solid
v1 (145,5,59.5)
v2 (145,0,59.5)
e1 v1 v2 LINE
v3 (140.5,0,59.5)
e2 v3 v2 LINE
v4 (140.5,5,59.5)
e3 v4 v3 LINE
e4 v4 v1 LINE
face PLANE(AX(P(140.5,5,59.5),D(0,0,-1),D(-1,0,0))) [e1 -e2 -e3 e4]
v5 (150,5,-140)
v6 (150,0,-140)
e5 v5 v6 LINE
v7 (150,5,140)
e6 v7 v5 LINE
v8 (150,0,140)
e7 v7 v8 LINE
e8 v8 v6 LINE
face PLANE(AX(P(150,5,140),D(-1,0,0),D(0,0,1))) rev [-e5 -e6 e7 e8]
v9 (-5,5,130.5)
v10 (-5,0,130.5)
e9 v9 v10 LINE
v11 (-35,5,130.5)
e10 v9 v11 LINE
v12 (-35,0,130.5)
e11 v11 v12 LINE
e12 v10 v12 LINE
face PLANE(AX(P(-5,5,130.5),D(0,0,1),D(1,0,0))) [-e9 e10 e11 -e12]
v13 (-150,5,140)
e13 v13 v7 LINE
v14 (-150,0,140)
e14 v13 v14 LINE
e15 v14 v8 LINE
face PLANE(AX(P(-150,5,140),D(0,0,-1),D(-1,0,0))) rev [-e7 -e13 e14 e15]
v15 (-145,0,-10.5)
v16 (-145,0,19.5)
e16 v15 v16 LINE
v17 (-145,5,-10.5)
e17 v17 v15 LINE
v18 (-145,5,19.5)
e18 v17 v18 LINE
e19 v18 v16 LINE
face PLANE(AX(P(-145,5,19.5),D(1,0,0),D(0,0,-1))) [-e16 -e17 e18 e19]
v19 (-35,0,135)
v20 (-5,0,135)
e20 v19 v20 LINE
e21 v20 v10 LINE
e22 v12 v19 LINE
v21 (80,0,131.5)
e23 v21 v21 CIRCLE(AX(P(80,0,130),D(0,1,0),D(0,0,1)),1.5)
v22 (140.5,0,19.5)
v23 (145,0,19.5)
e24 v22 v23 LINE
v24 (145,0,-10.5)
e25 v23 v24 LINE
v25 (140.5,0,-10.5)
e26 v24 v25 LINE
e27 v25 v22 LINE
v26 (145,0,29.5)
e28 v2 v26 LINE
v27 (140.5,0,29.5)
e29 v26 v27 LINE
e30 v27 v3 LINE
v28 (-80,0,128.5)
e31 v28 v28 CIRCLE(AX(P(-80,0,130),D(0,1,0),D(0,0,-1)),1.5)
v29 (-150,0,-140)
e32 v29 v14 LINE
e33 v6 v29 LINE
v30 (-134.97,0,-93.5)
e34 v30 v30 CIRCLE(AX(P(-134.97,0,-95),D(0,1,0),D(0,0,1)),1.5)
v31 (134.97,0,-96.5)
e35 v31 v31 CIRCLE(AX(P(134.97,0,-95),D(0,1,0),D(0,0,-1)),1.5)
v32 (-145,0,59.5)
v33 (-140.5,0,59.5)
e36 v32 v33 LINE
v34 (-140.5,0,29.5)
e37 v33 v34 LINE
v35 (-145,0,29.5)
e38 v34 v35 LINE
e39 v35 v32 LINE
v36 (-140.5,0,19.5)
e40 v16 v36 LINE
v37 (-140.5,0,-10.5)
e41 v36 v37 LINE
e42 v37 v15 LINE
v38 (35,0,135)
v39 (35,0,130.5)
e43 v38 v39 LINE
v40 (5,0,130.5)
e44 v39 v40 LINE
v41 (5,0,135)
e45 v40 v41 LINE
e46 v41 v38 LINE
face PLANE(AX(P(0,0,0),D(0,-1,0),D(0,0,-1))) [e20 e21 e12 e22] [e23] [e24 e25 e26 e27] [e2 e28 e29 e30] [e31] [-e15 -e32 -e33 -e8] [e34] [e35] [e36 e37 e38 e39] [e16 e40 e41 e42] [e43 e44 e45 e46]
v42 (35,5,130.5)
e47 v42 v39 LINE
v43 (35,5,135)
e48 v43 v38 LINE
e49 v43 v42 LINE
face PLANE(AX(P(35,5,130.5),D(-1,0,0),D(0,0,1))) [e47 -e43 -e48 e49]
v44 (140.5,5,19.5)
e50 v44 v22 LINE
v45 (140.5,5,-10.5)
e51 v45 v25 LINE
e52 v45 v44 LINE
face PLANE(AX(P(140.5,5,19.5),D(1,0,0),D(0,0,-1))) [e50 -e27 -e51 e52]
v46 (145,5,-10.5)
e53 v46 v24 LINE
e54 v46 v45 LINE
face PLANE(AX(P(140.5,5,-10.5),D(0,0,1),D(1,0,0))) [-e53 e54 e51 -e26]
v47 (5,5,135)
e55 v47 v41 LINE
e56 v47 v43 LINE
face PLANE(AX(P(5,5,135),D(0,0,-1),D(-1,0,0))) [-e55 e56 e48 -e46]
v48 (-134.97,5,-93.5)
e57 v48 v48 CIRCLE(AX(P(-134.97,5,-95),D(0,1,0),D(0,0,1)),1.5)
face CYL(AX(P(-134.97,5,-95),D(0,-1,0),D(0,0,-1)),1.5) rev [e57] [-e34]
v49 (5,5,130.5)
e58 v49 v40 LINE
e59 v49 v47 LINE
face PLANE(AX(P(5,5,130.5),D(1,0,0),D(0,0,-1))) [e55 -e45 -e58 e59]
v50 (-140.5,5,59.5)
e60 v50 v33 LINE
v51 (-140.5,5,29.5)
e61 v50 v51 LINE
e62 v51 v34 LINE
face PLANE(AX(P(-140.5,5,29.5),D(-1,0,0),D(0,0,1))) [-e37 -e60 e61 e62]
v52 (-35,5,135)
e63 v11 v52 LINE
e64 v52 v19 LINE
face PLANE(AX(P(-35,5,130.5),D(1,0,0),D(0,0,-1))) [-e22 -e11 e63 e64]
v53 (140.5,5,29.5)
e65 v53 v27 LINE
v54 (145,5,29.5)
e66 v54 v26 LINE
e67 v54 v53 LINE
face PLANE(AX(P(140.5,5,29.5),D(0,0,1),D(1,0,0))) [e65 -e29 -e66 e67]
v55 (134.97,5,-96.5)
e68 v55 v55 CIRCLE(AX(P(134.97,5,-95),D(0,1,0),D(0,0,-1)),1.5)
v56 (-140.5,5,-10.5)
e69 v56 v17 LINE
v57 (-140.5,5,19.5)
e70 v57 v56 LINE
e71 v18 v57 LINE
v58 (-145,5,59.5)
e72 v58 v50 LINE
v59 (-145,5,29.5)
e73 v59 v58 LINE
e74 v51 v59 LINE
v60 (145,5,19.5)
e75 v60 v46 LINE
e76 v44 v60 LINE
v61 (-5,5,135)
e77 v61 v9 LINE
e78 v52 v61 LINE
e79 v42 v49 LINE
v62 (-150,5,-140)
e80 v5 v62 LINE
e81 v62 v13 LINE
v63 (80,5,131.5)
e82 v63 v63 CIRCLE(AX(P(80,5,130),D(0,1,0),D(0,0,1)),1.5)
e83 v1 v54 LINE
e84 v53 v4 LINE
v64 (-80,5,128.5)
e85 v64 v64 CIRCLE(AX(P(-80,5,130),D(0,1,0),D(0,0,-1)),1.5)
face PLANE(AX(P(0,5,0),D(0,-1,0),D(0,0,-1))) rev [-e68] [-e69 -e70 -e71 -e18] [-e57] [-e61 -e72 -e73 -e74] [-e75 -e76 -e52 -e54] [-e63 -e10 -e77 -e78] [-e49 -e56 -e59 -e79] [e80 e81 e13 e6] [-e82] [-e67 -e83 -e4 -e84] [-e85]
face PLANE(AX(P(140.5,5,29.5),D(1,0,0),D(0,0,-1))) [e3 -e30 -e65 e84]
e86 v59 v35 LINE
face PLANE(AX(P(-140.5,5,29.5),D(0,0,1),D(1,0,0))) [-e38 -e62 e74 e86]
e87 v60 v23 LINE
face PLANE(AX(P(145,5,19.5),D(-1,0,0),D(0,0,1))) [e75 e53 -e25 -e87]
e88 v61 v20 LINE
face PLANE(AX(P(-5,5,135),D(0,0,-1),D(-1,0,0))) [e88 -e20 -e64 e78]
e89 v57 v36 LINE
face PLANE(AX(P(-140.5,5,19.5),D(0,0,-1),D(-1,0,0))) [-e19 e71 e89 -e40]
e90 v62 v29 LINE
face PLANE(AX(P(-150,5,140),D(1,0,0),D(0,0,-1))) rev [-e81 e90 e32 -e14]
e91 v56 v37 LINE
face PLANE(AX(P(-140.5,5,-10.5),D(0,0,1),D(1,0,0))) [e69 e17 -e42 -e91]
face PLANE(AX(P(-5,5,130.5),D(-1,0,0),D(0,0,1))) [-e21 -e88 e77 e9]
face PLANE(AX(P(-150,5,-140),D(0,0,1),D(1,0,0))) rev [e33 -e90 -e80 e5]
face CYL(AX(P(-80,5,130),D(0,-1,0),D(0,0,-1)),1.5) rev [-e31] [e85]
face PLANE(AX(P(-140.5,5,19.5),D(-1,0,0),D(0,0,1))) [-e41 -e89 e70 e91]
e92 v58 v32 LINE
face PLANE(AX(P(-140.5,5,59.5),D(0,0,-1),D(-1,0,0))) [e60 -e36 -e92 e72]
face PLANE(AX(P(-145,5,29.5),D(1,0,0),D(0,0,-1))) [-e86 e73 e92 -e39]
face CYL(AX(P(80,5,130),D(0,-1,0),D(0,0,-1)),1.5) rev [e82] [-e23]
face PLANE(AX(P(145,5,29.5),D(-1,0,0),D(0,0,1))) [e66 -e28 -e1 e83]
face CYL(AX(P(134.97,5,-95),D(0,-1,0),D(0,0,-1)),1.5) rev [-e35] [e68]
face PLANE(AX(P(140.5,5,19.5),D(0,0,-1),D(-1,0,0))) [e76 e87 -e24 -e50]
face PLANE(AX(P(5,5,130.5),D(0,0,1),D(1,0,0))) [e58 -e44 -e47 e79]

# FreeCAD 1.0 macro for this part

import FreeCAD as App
import Part
import Sketcher

doc = App.newDocument("Part")
params = doc.addObject("Spreadsheet::Sheet", "Params")
for row, (alias, value) in enumerate([
    ("sketch1_diameter", "3 mm"),
    ("sketch1_width", "300 mm"),
    ("sketch1_width2", "30 mm"),
    ("sketch1_height", "280 mm"),
    ("sketch1_width3", "4.5 mm"),
    ("pad1_length", "5 mm"),
], start=1):
    params.set(f"A{row}", alias)
    params.set(f"B{row}", "=" + value)
    params.setAlias(f"B{row}", alias)

body = doc.addObject("PartDesign::Body", "Body")

# Sketch on XZ plane
sketch1 = doc.addObject("Sketcher::SketchObject", "Sketch")
body.addObject(sketch1)
sketch1.AttachmentSupport = (doc.XZ_Plane, [""])
sketch1.MapMode = "FlatFace"
sketch1.addGeometry([
    Part.LineSegment(App.Vector(-150, -140, 0), App.Vector(-150, 140, 0)),  # 0
    Part.LineSegment(App.Vector(-150, 140, 0), App.Vector(150, 140, 0)),  # 1
    Part.LineSegment(App.Vector(150, 140, 0), App.Vector(150, -140, 0)),  # 2
    Part.LineSegment(App.Vector(150, -140, 0), App.Vector(-150, -140, 0)),  # 3
    Part.Circle(App.Vector(-80, 130, 0), App.Vector(0, 0, 1), 1.5),  # 4
    Part.LineSegment(App.Vector(-5, 135, 0), App.Vector(-35, 135, 0)),  # 5
    Part.LineSegment(App.Vector(-35, 135, 0), App.Vector(-35, 130.5, 0)),  # 6
    Part.LineSegment(App.Vector(-35, 130.5, 0), App.Vector(-5, 130.5, 0)),  # 7
    Part.LineSegment(App.Vector(-5, 130.5, 0), App.Vector(-5, 135, 0)),  # 8
    Part.LineSegment(App.Vector(-140.5, 59.5, 0), App.Vector(-145, 59.5, 0)),  # 9
    Part.LineSegment(App.Vector(-145, 59.5, 0), App.Vector(-145, 29.5, 0)),  # 10
    Part.LineSegment(App.Vector(-145, 29.5, 0), App.Vector(-140.5, 29.5, 0)),  # 11
    Part.LineSegment(App.Vector(-140.5, 29.5, 0), App.Vector(-140.5, 59.5, 0)),  # 12
    Part.LineSegment(App.Vector(35, 135, 0), App.Vector(5, 135, 0)),  # 13
    Part.LineSegment(App.Vector(5, 135, 0), App.Vector(5, 130.5, 0)),  # 14
    Part.LineSegment(App.Vector(5, 130.5, 0), App.Vector(35, 130.5, 0)),  # 15
    Part.LineSegment(App.Vector(35, 130.5, 0), App.Vector(35, 135, 0)),  # 16
    Part.Circle(App.Vector(80, 130, 0), App.Vector(0, 0, 1), 1.5),  # 17
    Part.LineSegment(App.Vector(145, 59.5, 0), App.Vector(140.5, 59.5, 0)),  # 18
    Part.LineSegment(App.Vector(140.5, 59.5, 0), App.Vector(140.5, 29.5, 0)),  # 19
    Part.LineSegment(App.Vector(140.5, 29.5, 0), App.Vector(145, 29.5, 0)),  # 20
    Part.LineSegment(App.Vector(145, 29.5, 0), App.Vector(145, 59.5, 0)),  # 21
    Part.LineSegment(App.Vector(-140.5, 19.5, 0), App.Vector(-145, 19.5, 0)),  # 22
    Part.LineSegment(App.Vector(-145, 19.5, 0), App.Vector(-145, -10.5, 0)),  # 23
    Part.LineSegment(App.Vector(-145, -10.5, 0), App.Vector(-140.5, -10.5, 0)),  # 24
    Part.LineSegment(App.Vector(-140.5, -10.5, 0), App.Vector(-140.5, 19.5, 0)),  # 25
    Part.Circle(App.Vector(-134.97, -95, 0), App.Vector(0, 0, 1), 1.5),  # 26
    Part.LineSegment(App.Vector(145, 19.5, 0), App.Vector(140.5, 19.5, 0)),  # 27
    Part.LineSegment(App.Vector(140.5, 19.5, 0), App.Vector(140.5, -10.5, 0)),  # 28
    Part.LineSegment(App.Vector(140.5, -10.5, 0), App.Vector(145, -10.5, 0)),  # 29
    Part.LineSegment(App.Vector(145, -10.5, 0), App.Vector(145, 19.5, 0)),  # 30
    Part.Circle(App.Vector(134.97, -95, 0), App.Vector(0, 0, 1), 1.5),  # 31
], False)
sketch1.addConstraint([
    Sketcher.Constraint("Coincident", 0, 2, 1, 1),
    Sketcher.Constraint("Coincident", 1, 2, 2, 1),
    Sketcher.Constraint("Coincident", 2, 2, 3, 1),
    Sketcher.Constraint("Coincident", 3, 2, 0, 1),
    Sketcher.Constraint("Coincident", 5, 2, 6, 1),
    Sketcher.Constraint("Coincident", 6, 2, 7, 1),
    Sketcher.Constraint("Coincident", 7, 2, 8, 1),
    Sketcher.Constraint("Coincident", 8, 2, 5, 1),
    Sketcher.Constraint("Coincident", 9, 2, 10, 1),
    Sketcher.Constraint("Coincident", 10, 2, 11, 1),
    Sketcher.Constraint("Coincident", 11, 2, 12, 1),
    Sketcher.Constraint("Coincident", 12, 2, 9, 1),
    Sketcher.Constraint("Coincident", 13, 2, 14, 1),
    Sketcher.Constraint("Coincident", 14, 2, 15, 1),
    Sketcher.Constraint("Coincident", 15, 2, 16, 1),
    Sketcher.Constraint("Coincident", 16, 2, 13, 1),
    Sketcher.Constraint("Coincident", 18, 2, 19, 1),
    Sketcher.Constraint("Coincident", 19, 2, 20, 1),
    Sketcher.Constraint("Coincident", 20, 2, 21, 1),
    Sketcher.Constraint("Coincident", 21, 2, 18, 1),
    Sketcher.Constraint("Coincident", 22, 2, 23, 1),
    Sketcher.Constraint("Coincident", 23, 2, 24, 1),
    Sketcher.Constraint("Coincident", 24, 2, 25, 1),
    Sketcher.Constraint("Coincident", 25, 2, 22, 1),
    Sketcher.Constraint("Coincident", 27, 2, 28, 1),
    Sketcher.Constraint("Coincident", 28, 2, 29, 1),
    Sketcher.Constraint("Coincident", 29, 2, 30, 1),
    Sketcher.Constraint("Coincident", 30, 2, 27, 1),
    Sketcher.Constraint("Vertical", 0),
    Sketcher.Constraint("Horizontal", 1),
    Sketcher.Constraint("Vertical", 2),
    Sketcher.Constraint("Horizontal", 3),
    Sketcher.Constraint("Horizontal", 5),
    Sketcher.Constraint("Vertical", 6),
    Sketcher.Constraint("Horizontal", 7),
    Sketcher.Constraint("Vertical", 8),
    Sketcher.Constraint("Horizontal", 9),
    Sketcher.Constraint("Vertical", 10),
    Sketcher.Constraint("Horizontal", 11),
    Sketcher.Constraint("Vertical", 12),
    Sketcher.Constraint("Horizontal", 13),
    Sketcher.Constraint("Vertical", 14),
    Sketcher.Constraint("Horizontal", 15),
    Sketcher.Constraint("Vertical", 16),
    Sketcher.Constraint("Horizontal", 18),
    Sketcher.Constraint("Vertical", 19),
    Sketcher.Constraint("Horizontal", 20),
    Sketcher.Constraint("Vertical", 21),
    Sketcher.Constraint("Horizontal", 22),
    Sketcher.Constraint("Vertical", 23),
    Sketcher.Constraint("Horizontal", 24),
    Sketcher.Constraint("Vertical", 25),
    Sketcher.Constraint("Horizontal", 27),
    Sketcher.Constraint("Vertical", 28),
    Sketcher.Constraint("Horizontal", 29),
    Sketcher.Constraint("Vertical", 30),
    Sketcher.Constraint("Equal", 4, 17),
    Sketcher.Constraint("Equal", 17, 26),
    Sketcher.Constraint("Equal", 26, 31),
    Sketcher.Constraint("Symmetric", 0, 2, 2, 2, -1, 1),
    Sketcher.Constraint("Symmetric", 4, 3, 17, 3, -2),
    Sketcher.Constraint("Symmetric", 26, 3, 31, 3, -2),
    Sketcher.Constraint("Symmetric", 8, 2, 13, 2, -2),
    Sketcher.Constraint("Symmetric", 6, 2, 15, 2, -2),
    Sketcher.Constraint("Symmetric", 12, 2, 18, 2, -2),
    Sketcher.Constraint("Symmetric", 10, 2, 20, 2, -2),
    Sketcher.Constraint("Symmetric", 25, 2, 27, 2, -2),
    Sketcher.Constraint("Symmetric", 23, 2, 29, 2, -2),
    Sketcher.Constraint("Vertical", 10, 2, 22, 2),
    Sketcher.Constraint("Vertical", 12, 2, 24, 2),
    Sketcher.Constraint("Equal", 29, 6),
    Sketcher.Constraint("Equal", 15, 10),
    Sketcher.Constraint("Equal", 21, 23),
    Sketcher.Constraint("Diameter", 4, 3.0),
    Sketcher.Constraint("DistanceX", 1, 1, 1, 2, 300.0),
    Sketcher.Constraint("DistanceX", 5, 2, 5, 1, 30.0),
    Sketcher.Constraint("DistanceY", 0, 1, 0, 2, 280.0),
    Sketcher.Constraint("DistanceX", 9, 2, 9, 1, 4.5),
    Sketcher.Constraint("DistanceX", 4, 3, -1, 1, 80.0),
    Sketcher.Constraint("DistanceY", -1, 1, 4, 3, 130.0),
    Sketcher.Constraint("DistanceY", 26, 3, -1, 1, 95.0),
    Sketcher.Constraint("DistanceX", 5, 2, -1, 1, 35.0),
    Sketcher.Constraint("DistanceY", -1, 1, 5, 2, 135.0),
    Sketcher.Constraint("DistanceX", 9, 2, -1, 1, 145.0),
    Sketcher.Constraint("DistanceY", 9, 2, 6, 2, 71.0),
    Sketcher.Constraint("DistanceY", 22, 2, 10, 2, 10.0),
    Sketcher.Constraint("DistanceX", 26, 3, -1, 1, 134.97),
])
sketch1.setExpression("Constraints[73]", "Params.sketch1_diameter")
sketch1.setExpression("Constraints[74]", "Params.sketch1_width")
sketch1.setExpression("Constraints[75]", "Params.sketch1_width2")
sketch1.setExpression("Constraints[76]", "Params.sketch1_height")
sketch1.setExpression("Constraints[77]", "Params.sketch1_width3")
pad1 = doc.addObject("PartDesign::Pad", "Pad")
body.addObject(pad1)
pad1.Profile = sketch1
pad1.setExpression("Length", "Params.pad1_length")
pad1.Reversed = True

doc.recompute()
